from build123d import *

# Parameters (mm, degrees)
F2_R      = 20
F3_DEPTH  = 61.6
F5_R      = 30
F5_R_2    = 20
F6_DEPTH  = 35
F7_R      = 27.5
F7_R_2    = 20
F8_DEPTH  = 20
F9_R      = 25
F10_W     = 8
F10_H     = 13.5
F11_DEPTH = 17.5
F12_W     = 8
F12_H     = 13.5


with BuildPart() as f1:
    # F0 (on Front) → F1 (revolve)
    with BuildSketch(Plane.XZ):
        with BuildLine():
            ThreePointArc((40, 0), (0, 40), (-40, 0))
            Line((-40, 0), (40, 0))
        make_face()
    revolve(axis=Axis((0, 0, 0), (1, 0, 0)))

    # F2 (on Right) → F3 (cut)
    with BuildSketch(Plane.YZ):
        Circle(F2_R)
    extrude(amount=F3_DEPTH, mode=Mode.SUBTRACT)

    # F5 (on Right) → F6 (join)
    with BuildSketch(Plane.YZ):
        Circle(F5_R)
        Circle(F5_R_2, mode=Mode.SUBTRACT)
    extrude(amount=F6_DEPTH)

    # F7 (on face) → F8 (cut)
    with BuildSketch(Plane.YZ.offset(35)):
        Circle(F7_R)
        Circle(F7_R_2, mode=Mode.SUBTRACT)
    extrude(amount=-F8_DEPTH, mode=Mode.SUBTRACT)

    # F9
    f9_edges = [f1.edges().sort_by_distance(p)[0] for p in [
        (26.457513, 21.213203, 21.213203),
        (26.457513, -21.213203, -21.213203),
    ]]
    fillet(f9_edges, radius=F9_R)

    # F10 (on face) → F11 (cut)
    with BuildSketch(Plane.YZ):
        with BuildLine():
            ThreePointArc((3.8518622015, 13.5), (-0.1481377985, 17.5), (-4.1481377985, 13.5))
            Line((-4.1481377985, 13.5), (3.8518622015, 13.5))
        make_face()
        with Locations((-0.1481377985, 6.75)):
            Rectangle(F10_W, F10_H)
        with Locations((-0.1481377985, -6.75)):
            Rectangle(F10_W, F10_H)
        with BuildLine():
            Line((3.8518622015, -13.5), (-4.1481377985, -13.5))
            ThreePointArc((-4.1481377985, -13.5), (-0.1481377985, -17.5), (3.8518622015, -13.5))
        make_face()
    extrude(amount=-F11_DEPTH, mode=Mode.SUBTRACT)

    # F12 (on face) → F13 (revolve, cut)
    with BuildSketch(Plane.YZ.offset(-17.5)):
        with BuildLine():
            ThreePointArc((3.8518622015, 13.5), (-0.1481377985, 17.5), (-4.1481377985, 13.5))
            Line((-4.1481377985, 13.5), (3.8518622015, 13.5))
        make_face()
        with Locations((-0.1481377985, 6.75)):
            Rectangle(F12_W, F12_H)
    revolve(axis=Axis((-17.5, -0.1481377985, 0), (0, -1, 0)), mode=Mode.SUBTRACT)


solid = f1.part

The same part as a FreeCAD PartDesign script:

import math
import FreeCAD as App
import Part
import Sketcher

V = App.Vector
Q = App.Units.Quantity


def edges_at(feature, points):
    """Names of the edges that pass closest to the given points."""
    edges = feature.Shape.Edges
    near = lambda p: min(range(len(edges)), key=lambda i: edges[i].distToShape(Part.Vertex(*p))[0])
    return sorted({f"Edge{near(p) + 1}" for p in points})

doc = App.newDocument("Part")
body = doc.addObject("PartDesign::Body", "Body")

# Sketch on XZ plane
sketch1 = body.newObject("Sketcher::SketchObject", "Sketch")
sketch1.AttachmentSupport = (doc.getObject("XZ_Plane"), [""])
sketch1.MapMode = "FlatFace"
sketch1.addGeometry([
    Part.ArcOfCircle(Part.Circle(V(0, 0, 0), V(0, 0, 1), 40), math.radians(0), math.radians(180)),
    Part.LineSegment(V(-40, 0, 0), V(40, 0, 0)),
], False)
sketch1.addConstraint([
    Sketcher.Constraint("Coincident", 0, 1, 1, 2),
    Sketcher.Constraint("Coincident", 1, 1, 0, 2),
    Sketcher.Constraint("Horizontal", 1),
    Sketcher.Constraint("Coincident", 0, 3, -1, 1),
    Sketcher.Constraint("PointOnObject", 0, 1, -1),
    Sketcher.Constraint("Radius", 0, Q("40 mm")),
])
revolution = body.newObject("PartDesign::Revolution", "Revolution")
revolution.Profile = sketch1
revolution.ReferenceAxis = (sketch1, ["H_Axis"])
revolution.Angle = 360

# Sketch on YZ plane
sketch2 = body.newObject("Sketcher::SketchObject", "Sketch001")
sketch2.AttachmentSupport = (doc.getObject("YZ_Plane"), [""])
sketch2.MapMode = "FlatFace"
sketch2.addGeometry(Part.Circle(V(0, 0, 0), V(0, 0, 1), 20), False)
sketch2.addConstraint([
    Sketcher.Constraint("Coincident", 0, 3, -1, 1),
    Sketcher.Constraint("Diameter", 0, Q("40 mm")),
])
pocket1 = body.newObject("PartDesign::Pocket", "Pocket")
pocket1.Profile = sketch2
pocket1.Length = 61.6
pocket1.Reversed = True

# Sketch on YZ plane
sketch3 = body.newObject("Sketcher::SketchObject", "Sketch002")
sketch3.AttachmentSupport = (doc.getObject("YZ_Plane"), [""])
sketch3.MapMode = "FlatFace"
sketch3.addGeometry([
    Part.Circle(V(0, 0, 0), V(0, 0, 1), 30),
    Part.Circle(V(0, 0, 0), V(0, 0, 1), 20),
], False)
sketch3.addConstraint([
    Sketcher.Constraint("Coincident", 0, 3, -1, 1),
    Sketcher.Constraint("Coincident", 1, 3, -1, 1),
    Sketcher.Constraint("Diameter", 0, Q("60 mm")),
    Sketcher.Constraint("Diameter", 1, Q("40 mm")),
])
pad1 = body.newObject("PartDesign::Pad", "Pad")
pad1.Profile = sketch3
pad1.Length = 35

# Sketch on YZ plane
sketch4 = body.newObject("Sketcher::SketchObject", "Sketch003")
sketch4.AttachmentSupport = (doc.getObject("YZ_Plane"), [""])
sketch4.MapMode = "FlatFace"
sketch4.AttachmentOffset = App.Placement(V(0, 0, 35), App.Rotation())
sketch4.addGeometry([
    Part.Circle(V(0, 0, 0), V(0, 0, 1), 27.5),
    Part.Circle(V(0, 0, 0), V(0, 0, 1), 20),
], False)
sketch4.addConstraint([
    Sketcher.Constraint("Coincident", 0, 3, -1, 1),
    Sketcher.Constraint("Coincident", 1, 3, -1, 1),
    Sketcher.Constraint("Diameter", 0, Q("55 mm")),
    Sketcher.Constraint("Diameter", 1, Q("40 mm")),
])
pocket2 = body.newObject("PartDesign::Pocket", "Pocket001")
pocket2.Profile = sketch4
pocket2.Length = 20
doc.recompute()

fillet = body.newObject("PartDesign::Fillet", "Fillet")
fillet.Base = (pocket2, edges_at(pocket2, [(26.458, 21.213, 21.213), (26.458, -21.213, -21.213)]))
fillet.Radius = 25

# Sketch on YZ plane
sketch5 = body.newObject("Sketcher::SketchObject", "Sketch004")
sketch5.AttachmentSupport = (doc.getObject("YZ_Plane"), [""])
sketch5.MapMode = "FlatFace"
sketch5.addGeometry([
    Part.ArcOfCircle(Part.Circle(V(-0.148138, 13.5, 0), V(0, 0, 1), 4), math.radians(0), math.radians(180)),
    Part.LineSegment(V(-4.148138, 13.5, 0), V(-4.148138, -13.5, 0)),
    Part.ArcOfCircle(Part.Circle(V(-0.148138, -13.5, 0), V(0, 0, 1), 4), math.radians(180), math.radians(360)),
    Part.LineSegment(V(3.851862, -13.5, 0), V(3.851862, 13.5, 0)),
], False)
sketch5.addConstraint([
    Sketcher.Constraint("Tangent", 0, 2, 1, 1),
    Sketcher.Constraint("Tangent", 1, 2, 2, 1),
    Sketcher.Constraint("Tangent", 2, 2, 3, 1),
    Sketcher.Constraint("Tangent", 3, 2, 0, 1),
    Sketcher.Constraint("Vertical", 1),
    Sketcher.Constraint("Vertical", 3),
    Sketcher.Constraint("Radius", 0, Q("4 mm")),
    Sketcher.Constraint("DistanceY", 1, 2, 1, 1, Q("27 mm")),
    Sketcher.Constraint("DistanceY", -1, 1, 0, 3, Q("13.5 mm")),
    Sketcher.Constraint("DistanceX", 0, 3, -1, 1, Q("0.148138 mm")),
])
pocket3 = body.newObject("PartDesign::Pocket", "Pocket002")
pocket3.Profile = sketch5
pocket3.Length = 17.5

# Sketch on YZ plane
sketch6 = body.newObject("Sketcher::SketchObject", "Sketch005")
sketch6.AttachmentSupport = (doc.getObject("YZ_Plane"), [""])
sketch6.MapMode = "FlatFace"
sketch6.AttachmentOffset = App.Placement(V(0, 0, -17.5), App.Rotation())
sketch6.addGeometry([
    Part.ArcOfCircle(Part.Circle(V(-0.148138, 13.5, 0), V(0, 0, 1), 4), math.radians(0), math.radians(180)),
    Part.LineSegment(V(-4.148138, 13.5, 0), V(-4.148138, 0, 0)),
    Part.LineSegment(V(-4.148138, 0, 0), V(3.851862, 0, 0)),
    Part.LineSegment(V(3.851862, 0, 0), V(3.851862, 13.5, 0)),
], False)
sketch6.addConstraint([
    Sketcher.Constraint("Tangent", 0, 2, 1, 1),
    Sketcher.Constraint("Coincident", 1, 2, 2, 1),
    Sketcher.Constraint("Coincident", 2, 2, 3, 1),
    Sketcher.Constraint("Tangent", 3, 2, 0, 1),
    Sketcher.Constraint("Vertical", 1),
    Sketcher.Constraint("Horizontal", 2),
    Sketcher.Constraint("Vertical", 3),
    Sketcher.Constraint("PointOnObject", 1, 2, -1),
    Sketcher.Constraint("Radius", 0, Q("4 mm")),
    Sketcher.Constraint("DistanceY", 1, 2, 1, 1, Q("13.5 mm")),
    Sketcher.Constraint("DistanceX", 0, 3, -1, 1, Q("0.148138 mm")),
])
groove = body.newObject("PartDesign::Groove", "Groove")
groove.Profile = sketch6
groove.ReferenceAxis = (sketch6, ["H_Axis"])
groove.Angle = 360

doc.recompute()
